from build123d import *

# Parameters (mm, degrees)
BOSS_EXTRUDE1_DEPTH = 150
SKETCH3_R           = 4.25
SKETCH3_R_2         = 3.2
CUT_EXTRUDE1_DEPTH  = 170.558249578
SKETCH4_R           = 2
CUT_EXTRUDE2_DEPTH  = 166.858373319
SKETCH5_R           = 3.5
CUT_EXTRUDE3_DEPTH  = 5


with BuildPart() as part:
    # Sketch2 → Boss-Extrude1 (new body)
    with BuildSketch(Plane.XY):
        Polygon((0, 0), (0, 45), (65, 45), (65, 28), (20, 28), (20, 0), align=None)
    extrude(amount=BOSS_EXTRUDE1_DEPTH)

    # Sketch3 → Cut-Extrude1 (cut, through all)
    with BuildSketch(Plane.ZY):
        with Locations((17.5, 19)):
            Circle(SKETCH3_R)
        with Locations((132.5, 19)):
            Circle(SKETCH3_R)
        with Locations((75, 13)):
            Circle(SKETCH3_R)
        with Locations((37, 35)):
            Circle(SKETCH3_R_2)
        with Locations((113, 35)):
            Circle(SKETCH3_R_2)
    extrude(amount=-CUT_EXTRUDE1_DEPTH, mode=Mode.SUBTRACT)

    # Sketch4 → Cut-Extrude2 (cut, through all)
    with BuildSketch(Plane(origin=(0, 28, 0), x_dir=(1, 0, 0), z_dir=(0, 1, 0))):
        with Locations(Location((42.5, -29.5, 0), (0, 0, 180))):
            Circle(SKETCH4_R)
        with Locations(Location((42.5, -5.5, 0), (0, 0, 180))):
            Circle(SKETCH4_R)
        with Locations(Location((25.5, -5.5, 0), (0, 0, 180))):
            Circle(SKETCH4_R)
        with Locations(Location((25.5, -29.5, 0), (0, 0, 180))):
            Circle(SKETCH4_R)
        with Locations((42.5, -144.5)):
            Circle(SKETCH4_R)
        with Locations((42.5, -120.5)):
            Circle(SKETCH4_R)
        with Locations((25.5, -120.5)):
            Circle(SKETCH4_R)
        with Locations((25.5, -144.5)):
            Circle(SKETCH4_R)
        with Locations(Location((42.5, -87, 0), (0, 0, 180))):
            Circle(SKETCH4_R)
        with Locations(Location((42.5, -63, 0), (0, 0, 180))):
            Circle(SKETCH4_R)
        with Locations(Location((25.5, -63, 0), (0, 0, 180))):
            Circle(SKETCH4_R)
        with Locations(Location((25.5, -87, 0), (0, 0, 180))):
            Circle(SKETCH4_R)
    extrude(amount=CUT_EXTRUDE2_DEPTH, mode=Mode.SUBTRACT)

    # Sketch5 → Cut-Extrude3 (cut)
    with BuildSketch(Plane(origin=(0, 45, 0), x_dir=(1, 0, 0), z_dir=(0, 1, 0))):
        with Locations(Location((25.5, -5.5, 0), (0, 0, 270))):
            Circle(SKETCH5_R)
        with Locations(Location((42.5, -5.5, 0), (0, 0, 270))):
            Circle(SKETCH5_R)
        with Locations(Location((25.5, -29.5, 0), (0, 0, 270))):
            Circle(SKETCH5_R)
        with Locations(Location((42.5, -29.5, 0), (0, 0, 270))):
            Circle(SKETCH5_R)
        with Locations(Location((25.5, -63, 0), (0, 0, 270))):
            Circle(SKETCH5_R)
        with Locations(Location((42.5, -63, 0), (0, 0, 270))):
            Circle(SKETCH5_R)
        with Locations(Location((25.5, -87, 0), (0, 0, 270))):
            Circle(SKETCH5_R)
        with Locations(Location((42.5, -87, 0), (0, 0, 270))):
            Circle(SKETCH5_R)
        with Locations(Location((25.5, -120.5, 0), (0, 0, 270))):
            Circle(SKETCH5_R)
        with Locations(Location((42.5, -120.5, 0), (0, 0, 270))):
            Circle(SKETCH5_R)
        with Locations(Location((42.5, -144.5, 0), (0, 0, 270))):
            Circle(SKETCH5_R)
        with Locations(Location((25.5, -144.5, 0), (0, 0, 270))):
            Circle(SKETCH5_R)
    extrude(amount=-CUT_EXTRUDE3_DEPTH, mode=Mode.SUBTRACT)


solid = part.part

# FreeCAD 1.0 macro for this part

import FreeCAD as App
import Part
import Sketcher
Q = App.Units.Quantity

doc = App.newDocument("Part")
body = doc.addObject("PartDesign::Body", "Body")

sketch1 = body.newObject("Sketcher::SketchObject", "Sketch")
sketch1.AttachmentSupport = (doc.getObject("XY_Plane"), [""])
sketch1.MapMode = "FlatFace"
sketch1.addGeometry(Part.LineSegment(App.Vector(0, 45, 0), App.Vector(0, 0, 0)), False)
sketch1.addGeometry(Part.LineSegment(App.Vector(0, 0, 0), App.Vector(20, 0, 0)), False)
sketch1.addGeometry(Part.LineSegment(App.Vector(20, 0, 0), App.Vector(20, 28, 0)), False)
sketch1.addGeometry(Part.LineSegment(App.Vector(20, 28, 0), App.Vector(65, 28, 0)), False)
sketch1.addGeometry(Part.LineSegment(App.Vector(65, 28, 0), App.Vector(65, 45, 0)), False)
sketch1.addGeometry(Part.LineSegment(App.Vector(65, 45, 0), App.Vector(0, 45, 0)), False)
sketch1.addConstraint(Sketcher.Constraint("Coincident", 0, 2, 1, 1))
sketch1.addConstraint(Sketcher.Constraint("Coincident", 1, 2, 2, 1))
sketch1.addConstraint(Sketcher.Constraint("Coincident", 2, 2, 3, 1))
sketch1.addConstraint(Sketcher.Constraint("Coincident", 3, 2, 4, 1))
sketch1.addConstraint(Sketcher.Constraint("Coincident", 4, 2, 5, 1))
sketch1.addConstraint(Sketcher.Constraint("Coincident", 5, 2, 0, 1))
sketch1.addConstraint(Sketcher.Constraint("Vertical", 0))
sketch1.addConstraint(Sketcher.Constraint("Horizontal", 1))
sketch1.addConstraint(Sketcher.Constraint("Vertical", 2))
sketch1.addConstraint(Sketcher.Constraint("Horizontal", 3))
sketch1.addConstraint(Sketcher.Constraint("Vertical", 4))
sketch1.addConstraint(Sketcher.Constraint("Horizontal", 5))
sketch1.addConstraint(Sketcher.Constraint("Coincident", 0, 2, -1, 1))
sketch1.addConstraint(Sketcher.Constraint("Equal", 3, 0))
sketch1.addConstraint(Sketcher.Constraint("DistanceX", 1, 1, 1, 2, Q("20 mm")))
sketch1.addConstraint(Sketcher.Constraint("DistanceX", 3, 1, 3, 2, Q("45 mm")))
sketch1.addConstraint(Sketcher.Constraint("DistanceY", 2, 1, 2, 2, Q("28 mm")))
pad1 = body.newObject("PartDesign::Pad", "Pad")
pad1.Profile = sketch1
pad1.Length = 150

sketch2 = body.newObject("Sketcher::SketchObject", "Sketch001")
sketch2.AttachmentSupport = (doc.getObject("YZ_Plane"), [""])
sketch2.MapMode = "FlatFace"
sketch2.addGeometry(Part.Circle(App.Vector(19, 17.5, 0), App.Vector(0, 0, 1), 4.25), False)
sketch2.addGeometry(Part.Circle(App.Vector(19, 132.5, 0), App.Vector(0, 0, 1), 4.25), False)
sketch2.addGeometry(Part.Circle(App.Vector(13, 75, 0), App.Vector(0, 0, 1), 4.25), False)
sketch2.addGeometry(Part.Circle(App.Vector(35, 37, 0), App.Vector(0, 0, 1), 3.2), False)
sketch2.addGeometry(Part.Circle(App.Vector(35, 113, 0), App.Vector(0, 0, 1), 3.2), False)
sketch2.addConstraint(Sketcher.Constraint("Equal", 0, 1))
sketch2.addConstraint(Sketcher.Constraint("Equal", 1, 2))
sketch2.addConstraint(Sketcher.Constraint("Equal", 3, 4))
sketch2.addConstraint(Sketcher.Constraint("Vertical", 0, 3, 1, 3))
sketch2.addConstraint(Sketcher.Constraint("Vertical", 3, 3, 4, 3))
sketch2.addConstraint(Sketcher.Constraint("Diameter", 0, Q("8.5 mm")))
sketch2.addConstraint(Sketcher.Constraint("Diameter", 3, Q("6.4 mm")))
sketch2.addConstraint(Sketcher.Constraint("DistanceX", -1, 1, 0, 3, Q("19 mm")))
sketch2.addConstraint(Sketcher.Constraint("DistanceX", -1, 1, 2, 3, Q("13 mm")))
sketch2.addConstraint(Sketcher.Constraint("DistanceY", -1, 1, 2, 3, Q("75 mm")))
sketch2.addConstraint(Sketcher.Constraint("DistanceX", -1, 1, 3, 3, Q("35 mm")))
sketch2.addConstraint(Sketcher.Constraint("DistanceY", -1, 1, 3, 3, Q("37 mm")))
sketch2.addConstraint(Sketcher.Constraint("DistanceY", -1, 1, 4, 3, Q("113 mm")))
sketch2.addConstraint(Sketcher.Constraint("DistanceY", 0, 3, 1, 3, Q("115 mm")))
sketch2.addConstraint(Sketcher.Constraint("DistanceY", -1, 1, 0, 3, Q("17.5 mm")))
pocket1 = body.newObject("PartDesign::Pocket", "Pocket")
pocket1.Profile = sketch2
pocket1.Type = "ThroughAll"
pocket1.Reversed = True

sketch3 = body.newObject("Sketcher::SketchObject", "Sketch002")
sketch3.AttachmentSupport = (doc.getObject("XZ_Plane"), [""])
sketch3.MapMode = "FlatFace"
sketch3.AttachmentOffset = App.Placement(App.Vector(0, 0, -28), App.Rotation())
sketch3.addGeometry(Part.Circle(App.Vector(42.5, 29.5, 0), App.Vector(0, 0, 1), 2), False)
sketch3.addGeometry(Part.Circle(App.Vector(42.5, 5.5, 0), App.Vector(0, 0, 1), 2), False)
sketch3.addGeometry(Part.Circle(App.Vector(25.5, 5.5, 0), App.Vector(0, 0, 1), 2), False)
sketch3.addGeometry(Part.Circle(App.Vector(25.5, 29.5, 0), App.Vector(0, 0, 1), 2), False)
sketch3.addGeometry(Part.Circle(App.Vector(42.5, 144.5, 0), App.Vector(0, 0, 1), 2), False)
sketch3.addGeometry(Part.Circle(App.Vector(42.5, 120.5, 0), App.Vector(0, 0, 1), 2), False)
sketch3.addGeometry(Part.Circle(App.Vector(25.5, 120.5, 0), App.Vector(0, 0, 1), 2), False)
sketch3.addGeometry(Part.Circle(App.Vector(25.5, 144.5, 0), App.Vector(0, 0, 1), 2), False)
sketch3.addGeometry(Part.Circle(App.Vector(42.5, 87, 0), App.Vector(0, 0, 1), 2), False)
sketch3.addGeometry(Part.Circle(App.Vector(42.5, 63, 0), App.Vector(0, 0, 1), 2), False)
sketch3.addGeometry(Part.Circle(App.Vector(25.5, 63, 0), App.Vector(0, 0, 1), 2), False)
sketch3.addGeometry(Part.Circle(App.Vector(25.5, 87, 0), App.Vector(0, 0, 1), 2), False)
sketch3.addConstraint(Sketcher.Constraint("Equal", 0, 1))
sketch3.addConstraint(Sketcher.Constraint("Equal", 1, 2))
sketch3.addConstraint(Sketcher.Constraint("Equal", 2, 3))
sketch3.addConstraint(Sketcher.Constraint("Equal", 3, 4))
sketch3.addConstraint(Sketcher.Constraint("Equal", 4, 5))
sketch3.addConstraint(Sketcher.Constraint("Equal", 5, 6))
sketch3.addConstraint(Sketcher.Constraint("Equal", 6, 7))
sketch3.addConstraint(Sketcher.Constraint("Equal", 7, 8))
sketch3.addConstraint(Sketcher.Constraint("Equal", 8, 9))
sketch3.addConstraint(Sketcher.Constraint("Equal", 9, 10))
sketch3.addConstraint(Sketcher.Constraint("Equal", 10, 11))
sketch3.addConstraint(Sketcher.Constraint("Horizontal", 1, 3, 2, 3))
sketch3.addConstraint(Sketcher.Constraint("Horizontal", 0, 3, 3, 3))
sketch3.addConstraint(Sketcher.Constraint("Horizontal", 5, 3, 6, 3))
sketch3.addConstraint(Sketcher.Constraint("Horizontal", 4, 3, 7, 3))
sketch3.addConstraint(Sketcher.Constraint("Horizontal", 9, 3, 10, 3))
sketch3.addConstraint(Sketcher.Constraint("Horizontal", 8, 3, 11, 3))
sketch3.addConstraint(Sketcher.Constraint("Vertical", 0, 3, 1, 3))
sketch3.addConstraint(Sketcher.Constraint("Vertical", 2, 3, 3, 3))
sketch3.addConstraint(Sketcher.Constraint("Vertical", 1, 3, 4, 3))
sketch3.addConstraint(Sketcher.Constraint("Vertical", 4, 3, 5, 3))
sketch3.addConstraint(Sketcher.Constraint("Vertical", 3, 3, 6, 3))
sketch3.addConstraint(Sketcher.Constraint("Vertical", 6, 3, 7, 3))
sketch3.addConstraint(Sketcher.Constraint("Vertical", 5, 3, 8, 3))
sketch3.addConstraint(Sketcher.Constraint("Vertical", 8, 3, 9, 3))
sketch3.addConstraint(Sketcher.Constraint("Vertical", 7, 3, 10, 3))
sketch3.addConstraint(Sketcher.Constraint("Vertical", 10, 3, 11, 3))
sketch3.addConstraint(Sketcher.Constraint("Diameter", 0, Q("4 mm")))
sketch3.addConstraint(Sketcher.Constraint("DistanceY", -1, 1, 8, 3, Q("87 mm")))
sketch3.addConstraint(Sketcher.Constraint("DistanceY", -1, 1, 9, 3, Q("63 mm")))
sketch3.addConstraint(Sketcher.Constraint("DistanceY", 1, 3, 0, 3, Q("24 mm")))
sketch3.addConstraint(Sketcher.Constraint("DistanceX", 2, 3, 1, 3, Q("17 mm")))
sketch3.addConstraint(Sketcher.Constraint("DistanceY", 0, 3, 4, 3, Q("115 mm")))
sketch3.addConstraint(Sketcher.Constraint("DistanceY", 5, 3, 4, 3, Q("24 mm")))
sketch3.addConstraint(Sketcher.Constraint("DistanceX", -1, 1, 0, 3, Q("42.5 mm")))
sketch3.addConstraint(Sketcher.Constraint("DistanceY", -1, 1, 0, 3, Q("29.5 mm")))
pocket2 = body.newObject("PartDesign::Pocket", "Pocket001")
pocket2.Profile = sketch3
pocket2.Type = "ThroughAll"

sketch4 = body.newObject("Sketcher::SketchObject", "Sketch003")
sketch4.AttachmentSupport = (doc.getObject("XZ_Plane"), [""])
sketch4.MapMode = "FlatFace"
sketch4.AttachmentOffset = App.Placement(App.Vector(0, 0, -45), App.Rotation())
sketch4.addGeometry(Part.Circle(App.Vector(25.5, 5.5, 0), App.Vector(0, 0, 1), 3.5), False)
sketch4.addGeometry(Part.Circle(App.Vector(42.5, 5.5, 0), App.Vector(0, 0, 1), 3.5), False)
sketch4.addGeometry(Part.Circle(App.Vector(25.5, 29.5, 0), App.Vector(0, 0, 1), 3.5), False)
sketch4.addGeometry(Part.Circle(App.Vector(42.5, 29.5, 0), App.Vector(0, 0, 1), 3.5), False)
sketch4.addGeometry(Part.Circle(App.Vector(25.5, 63, 0), App.Vector(0, 0, 1), 3.5), False)
sketch4.addGeometry(Part.Circle(App.Vector(42.5, 63, 0), App.Vector(0, 0, 1), 3.5), False)
sketch4.addGeometry(Part.Circle(App.Vector(25.5, 87, 0), App.Vector(0, 0, 1), 3.5), False)
sketch4.addGeometry(Part.Circle(App.Vector(42.5, 87, 0), App.Vector(0, 0, 1), 3.5), False)
sketch4.addGeometry(Part.Circle(App.Vector(25.5, 120.5, 0), App.Vector(0, 0, 1), 3.5), False)
sketch4.addGeometry(Part.Circle(App.Vector(42.5, 120.5, 0), App.Vector(0, 0, 1), 3.5), False)
sketch4.addGeometry(Part.Circle(App.Vector(42.5, 144.5, 0), App.Vector(0, 0, 1), 3.5), False)
sketch4.addGeometry(Part.Circle(App.Vector(25.5, 144.5, 0), App.Vector(0, 0, 1), 3.5), False)
sketch4.addConstraint(Sketcher.Constraint("Equal", 0, 1))
sketch4.addConstraint(Sketcher.Constraint("Equal", 1, 2))
sketch4.addConstraint(Sketcher.Constraint("Equal", 2, 3))
sketch4.addConstraint(Sketcher.Constraint("Equal", 3, 4))
sketch4.addConstraint(Sketcher.Constraint("Equal", 4, 5))
sketch4.addConstraint(Sketcher.Constraint("Equal", 5, 6))
sketch4.addConstraint(Sketcher.Constraint("Equal", 6, 7))
sketch4.addConstraint(Sketcher.Constraint("Equal", 7, 8))
sketch4.addConstraint(Sketcher.Constraint("Equal", 8, 9))
sketch4.addConstraint(Sketcher.Constraint("Equal", 9, 10))
sketch4.addConstraint(Sketcher.Constraint("Equal", 10, 11))
sketch4.addConstraint(Sketcher.Constraint("Horizontal", 0, 3, 1, 3))
sketch4.addConstraint(Sketcher.Constraint("Horizontal", 2, 3, 3, 3))
sketch4.addConstraint(Sketcher.Constraint("Horizontal", 4, 3, 5, 3))
sketch4.addConstraint(Sketcher.Constraint("Horizontal", 6, 3, 7, 3))
sketch4.addConstraint(Sketcher.Constraint("Horizontal", 8, 3, 9, 3))
sketch4.addConstraint(Sketcher.Constraint("Horizontal", 10, 3, 11, 3))
sketch4.addConstraint(Sketcher.Constraint("Vertical", 0, 3, 2, 3))
sketch4.addConstraint(Sketcher.Constraint("Vertical", 1, 3, 3, 3))
sketch4.addConstraint(Sketcher.Constraint("Vertical", 2, 3, 4, 3))
sketch4.addConstraint(Sketcher.Constraint("Vertical", 3, 3, 5, 3))
sketch4.addConstraint(Sketcher.Constraint("Vertical", 4, 3, 6, 3))
sketch4.addConstraint(Sketcher.Constraint("Vertical", 5, 3, 7, 3))
sketch4.addConstraint(Sketcher.Constraint("Vertical", 6, 3, 8, 3))
sketch4.addConstraint(Sketcher.Constraint("Vertical", 7, 3, 9, 3))
sketch4.addConstraint(Sketcher.Constraint("Vertical", 9, 3, 10, 3))
sketch4.addConstraint(Sketcher.Constraint("Vertical", 8, 3, 11, 3))
sketch4.addConstraint(Sketcher.Constraint("Diameter", 0, Q("7 mm")))
sketch4.addConstraint(Sketcher.Constraint("DistanceY", -1, 1, 4, 3, Q("63 mm")))
sketch4.addConstraint(Sketcher.Constraint("DistanceY", -1, 1, 6, 3, Q("87 mm")))
sketch4.addConstraint(Sketcher.Constraint("DistanceX", 0, 3, 1, 3, Q("17 mm")))
sketch4.addConstraint(Sketcher.Constraint("DistanceY", 0, 3, 2, 3, Q("24 mm")))
sketch4.addConstraint(Sketcher.Constraint("DistanceY", 2, 3, 8, 3, Q("91 mm")))
sketch4.addConstraint(Sketcher.Constraint("DistanceY", 9, 3, 10, 3, Q("24 mm")))
sketch4.addConstraint(Sketcher.Constraint("DistanceX", -1, 1, 0, 3, Q("25.5 mm")))
sketch4.addConstraint(Sketcher.Constraint("DistanceY", -1, 1, 0, 3, Q("5.5 mm")))
pocket3 = body.newObject("PartDesign::Pocket", "Pocket002")
pocket3.Profile = sketch4
pocket3.Length = 5
pocket3.Reversed = True

doc.recompute()
